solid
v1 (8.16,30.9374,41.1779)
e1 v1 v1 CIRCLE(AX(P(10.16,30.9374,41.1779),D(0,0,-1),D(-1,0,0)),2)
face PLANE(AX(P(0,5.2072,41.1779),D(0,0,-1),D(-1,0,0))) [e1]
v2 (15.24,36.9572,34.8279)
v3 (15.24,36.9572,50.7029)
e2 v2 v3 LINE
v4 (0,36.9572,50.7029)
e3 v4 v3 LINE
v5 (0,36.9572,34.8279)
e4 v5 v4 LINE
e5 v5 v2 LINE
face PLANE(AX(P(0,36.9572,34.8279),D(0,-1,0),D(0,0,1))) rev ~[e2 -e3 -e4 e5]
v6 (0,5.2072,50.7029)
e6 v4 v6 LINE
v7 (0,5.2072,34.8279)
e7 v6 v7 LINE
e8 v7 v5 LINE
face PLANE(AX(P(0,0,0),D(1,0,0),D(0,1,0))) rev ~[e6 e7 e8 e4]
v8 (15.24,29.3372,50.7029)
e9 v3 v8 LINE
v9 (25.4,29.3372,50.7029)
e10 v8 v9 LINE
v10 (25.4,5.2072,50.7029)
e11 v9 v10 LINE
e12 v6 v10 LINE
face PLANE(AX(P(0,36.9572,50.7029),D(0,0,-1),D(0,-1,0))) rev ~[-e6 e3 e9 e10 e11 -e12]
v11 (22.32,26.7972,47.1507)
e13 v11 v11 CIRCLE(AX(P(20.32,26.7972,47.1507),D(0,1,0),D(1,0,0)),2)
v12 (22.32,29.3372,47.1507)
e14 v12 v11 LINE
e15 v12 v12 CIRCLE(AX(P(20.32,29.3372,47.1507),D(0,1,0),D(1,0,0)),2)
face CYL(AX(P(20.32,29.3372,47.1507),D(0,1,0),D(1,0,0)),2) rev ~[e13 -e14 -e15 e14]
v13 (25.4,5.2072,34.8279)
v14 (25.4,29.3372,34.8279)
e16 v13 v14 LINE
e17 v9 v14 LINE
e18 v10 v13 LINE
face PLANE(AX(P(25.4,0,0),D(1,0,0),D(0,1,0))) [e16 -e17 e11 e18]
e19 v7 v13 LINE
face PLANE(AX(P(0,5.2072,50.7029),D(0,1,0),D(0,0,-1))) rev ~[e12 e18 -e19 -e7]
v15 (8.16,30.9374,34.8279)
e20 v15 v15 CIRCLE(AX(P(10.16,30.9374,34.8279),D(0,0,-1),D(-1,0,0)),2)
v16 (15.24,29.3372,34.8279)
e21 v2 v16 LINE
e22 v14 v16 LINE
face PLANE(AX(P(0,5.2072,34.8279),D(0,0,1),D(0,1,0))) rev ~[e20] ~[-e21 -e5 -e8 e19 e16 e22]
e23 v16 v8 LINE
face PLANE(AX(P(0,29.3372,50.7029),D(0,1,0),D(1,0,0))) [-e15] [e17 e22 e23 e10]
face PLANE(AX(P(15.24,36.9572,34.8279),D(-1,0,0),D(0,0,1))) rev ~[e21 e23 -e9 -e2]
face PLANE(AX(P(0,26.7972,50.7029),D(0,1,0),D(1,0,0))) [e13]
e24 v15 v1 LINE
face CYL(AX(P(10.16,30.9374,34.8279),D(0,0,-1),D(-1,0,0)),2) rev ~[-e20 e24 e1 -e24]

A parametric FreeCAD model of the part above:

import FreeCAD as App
import Part
import Sketcher

V = App.Vector
Q = App.Units.Quantity


def add_polygon(sketch, points):
    """Adds a closed chain of lines whose ends are joined by coincident constraints."""
    first, n = sketch.GeometryCount, len(points)
    for a, b in zip(points, points[1:] + points[:1]):
        sketch.addGeometry(Part.LineSegment(App.Vector(*a, 0), App.Vector(*b, 0)), False)
    for i in range(n):
        sketch.addConstraint(Sketcher.Constraint("Coincident", first + i, 2, first + (i + 1) % n, 1))

doc = App.newDocument("Part")
body = doc.addObject("PartDesign::Body", "Body")

sketch1 = body.newObject("Sketcher::SketchObject", "Sketch")
sketch1.AttachmentSupport = (doc.getObject("YZ_Plane"), [""])
sketch1.MapMode = "FlatFace"
add_polygon(sketch1, [(36.9572, 34.8279), (36.9572, 50.7029), (5.2072, 50.7029), (5.2072, 34.8279)])
sketch1.addConstraint([
    Sketcher.Constraint("Vertical", 0),
    Sketcher.Constraint("Horizontal", 1),
    Sketcher.Constraint("Vertical", 2),
    Sketcher.Constraint("Horizontal", 3),
    Sketcher.Constraint("DistanceX", 1, 2, 1, 1, Q("1.25 in")),
    Sketcher.Constraint("DistanceY", 0, 1, 0, 2, Q("0.625 in")),
    Sketcher.Constraint("DistanceX", -1, 1, 0, 2, Q("1.455 in")),
    Sketcher.Constraint("DistanceY", -1, 1, 0, 2, Q("50.703 mm")),
])
pad1 = body.newObject("PartDesign::Pad", "Pad")
pad1.Profile = sketch1
pad1.Length = Q("1 in")

sketch2 = body.newObject("Sketcher::SketchObject", "Sketch001")
sketch2.AttachmentSupport = (doc.getObject("XZ_Plane"), [""])
sketch2.MapMode = "FlatFace"
sketch2.AttachmentOffset = App.Placement(V(0, 0, -1.4550079 * 25.4), App.Rotation())
add_polygon(sketch2, [(15.24, 50.7029), (25.4, 50.7029), (25.4, 34.8279), (15.24, 34.8279)])
sketch2.addConstraint([
    Sketcher.Constraint("Horizontal", 0),
    Sketcher.Constraint("Vertical", 1),
    Sketcher.Constraint("Horizontal", 2),
    Sketcher.Constraint("Vertical", 3),
    Sketcher.Constraint("DistanceX", 0, 1, 0, 2, Q("0.4 in")),
    Sketcher.Constraint("DistanceX", -1, 1, 0, 2, Q("1 in")),
    Sketcher.Constraint("DistanceY", 1, 2, 1, 1, Q("0.625 in")),
    Sketcher.Constraint("DistanceY", -1, 1, 0, 2, Q("50.703 mm")),
])
pocket1 = body.newObject("PartDesign::Pocket", "Pocket")
pocket1.Profile = sketch2
pocket1.Length = Q("0.3 in")
pocket1.Reversed = True

sketch3 = body.newObject("Sketcher::SketchObject", "Sketch002")
sketch3.AttachmentSupport = (doc.getObject("XZ_Plane"), [""])
sketch3.MapMode = "FlatFace"
sketch3.AttachmentOffset = App.Placement(V(0, 0, -1.1550079 * 25.4), App.Rotation())
sketch3.addGeometry(Part.Circle(V(20.32, 47.1507, 0), V(0, 0, 1), 2), False)
sketch3.addConstraint([
    Sketcher.Constraint("Diameter", 0, Q("4 mm")),
    Sketcher.Constraint("DistanceX", -1, 1, 0, 3, Q("0.8 in")),
    Sketcher.Constraint("DistanceY", -1, 1, 0, 3, Q("47.1507 mm")),
])
pocket2 = body.newObject("PartDesign::Pocket", "Pocket001")
pocket2.Profile = sketch3
pocket2.Length = Q("0.1 in")
pocket2.Reversed = True

sketch4 = body.newObject("Sketcher::SketchObject", "Sketch003")
sketch4.AttachmentSupport = (doc.getObject("XY_Plane"), [""])
sketch4.MapMode = "FlatFace"
sketch4.AttachmentOffset = App.Placement(V(0, 0, 34.8279), App.Rotation())
sketch4.addGeometry(Part.Circle(V(10.16, 30.9374, 0), V(0, 0, 1), 2), False)
sketch4.addConstraint([
    Sketcher.Constraint("DistanceX", -1, 1, 0, 3, Q("0.4 in")),
    Sketcher.Constraint("Diameter", 0, Q("4 mm")),
    Sketcher.Constraint("DistanceY", -1, 1, 0, 3, Q("1.218 in")),
])
pocket3 = body.newObject("PartDesign::Pocket", "Pocket002")
pocket3.Profile = sketch4
pocket3.Length = Q("0.25 in")
pocket3.Reversed = True

doc.recompute()
